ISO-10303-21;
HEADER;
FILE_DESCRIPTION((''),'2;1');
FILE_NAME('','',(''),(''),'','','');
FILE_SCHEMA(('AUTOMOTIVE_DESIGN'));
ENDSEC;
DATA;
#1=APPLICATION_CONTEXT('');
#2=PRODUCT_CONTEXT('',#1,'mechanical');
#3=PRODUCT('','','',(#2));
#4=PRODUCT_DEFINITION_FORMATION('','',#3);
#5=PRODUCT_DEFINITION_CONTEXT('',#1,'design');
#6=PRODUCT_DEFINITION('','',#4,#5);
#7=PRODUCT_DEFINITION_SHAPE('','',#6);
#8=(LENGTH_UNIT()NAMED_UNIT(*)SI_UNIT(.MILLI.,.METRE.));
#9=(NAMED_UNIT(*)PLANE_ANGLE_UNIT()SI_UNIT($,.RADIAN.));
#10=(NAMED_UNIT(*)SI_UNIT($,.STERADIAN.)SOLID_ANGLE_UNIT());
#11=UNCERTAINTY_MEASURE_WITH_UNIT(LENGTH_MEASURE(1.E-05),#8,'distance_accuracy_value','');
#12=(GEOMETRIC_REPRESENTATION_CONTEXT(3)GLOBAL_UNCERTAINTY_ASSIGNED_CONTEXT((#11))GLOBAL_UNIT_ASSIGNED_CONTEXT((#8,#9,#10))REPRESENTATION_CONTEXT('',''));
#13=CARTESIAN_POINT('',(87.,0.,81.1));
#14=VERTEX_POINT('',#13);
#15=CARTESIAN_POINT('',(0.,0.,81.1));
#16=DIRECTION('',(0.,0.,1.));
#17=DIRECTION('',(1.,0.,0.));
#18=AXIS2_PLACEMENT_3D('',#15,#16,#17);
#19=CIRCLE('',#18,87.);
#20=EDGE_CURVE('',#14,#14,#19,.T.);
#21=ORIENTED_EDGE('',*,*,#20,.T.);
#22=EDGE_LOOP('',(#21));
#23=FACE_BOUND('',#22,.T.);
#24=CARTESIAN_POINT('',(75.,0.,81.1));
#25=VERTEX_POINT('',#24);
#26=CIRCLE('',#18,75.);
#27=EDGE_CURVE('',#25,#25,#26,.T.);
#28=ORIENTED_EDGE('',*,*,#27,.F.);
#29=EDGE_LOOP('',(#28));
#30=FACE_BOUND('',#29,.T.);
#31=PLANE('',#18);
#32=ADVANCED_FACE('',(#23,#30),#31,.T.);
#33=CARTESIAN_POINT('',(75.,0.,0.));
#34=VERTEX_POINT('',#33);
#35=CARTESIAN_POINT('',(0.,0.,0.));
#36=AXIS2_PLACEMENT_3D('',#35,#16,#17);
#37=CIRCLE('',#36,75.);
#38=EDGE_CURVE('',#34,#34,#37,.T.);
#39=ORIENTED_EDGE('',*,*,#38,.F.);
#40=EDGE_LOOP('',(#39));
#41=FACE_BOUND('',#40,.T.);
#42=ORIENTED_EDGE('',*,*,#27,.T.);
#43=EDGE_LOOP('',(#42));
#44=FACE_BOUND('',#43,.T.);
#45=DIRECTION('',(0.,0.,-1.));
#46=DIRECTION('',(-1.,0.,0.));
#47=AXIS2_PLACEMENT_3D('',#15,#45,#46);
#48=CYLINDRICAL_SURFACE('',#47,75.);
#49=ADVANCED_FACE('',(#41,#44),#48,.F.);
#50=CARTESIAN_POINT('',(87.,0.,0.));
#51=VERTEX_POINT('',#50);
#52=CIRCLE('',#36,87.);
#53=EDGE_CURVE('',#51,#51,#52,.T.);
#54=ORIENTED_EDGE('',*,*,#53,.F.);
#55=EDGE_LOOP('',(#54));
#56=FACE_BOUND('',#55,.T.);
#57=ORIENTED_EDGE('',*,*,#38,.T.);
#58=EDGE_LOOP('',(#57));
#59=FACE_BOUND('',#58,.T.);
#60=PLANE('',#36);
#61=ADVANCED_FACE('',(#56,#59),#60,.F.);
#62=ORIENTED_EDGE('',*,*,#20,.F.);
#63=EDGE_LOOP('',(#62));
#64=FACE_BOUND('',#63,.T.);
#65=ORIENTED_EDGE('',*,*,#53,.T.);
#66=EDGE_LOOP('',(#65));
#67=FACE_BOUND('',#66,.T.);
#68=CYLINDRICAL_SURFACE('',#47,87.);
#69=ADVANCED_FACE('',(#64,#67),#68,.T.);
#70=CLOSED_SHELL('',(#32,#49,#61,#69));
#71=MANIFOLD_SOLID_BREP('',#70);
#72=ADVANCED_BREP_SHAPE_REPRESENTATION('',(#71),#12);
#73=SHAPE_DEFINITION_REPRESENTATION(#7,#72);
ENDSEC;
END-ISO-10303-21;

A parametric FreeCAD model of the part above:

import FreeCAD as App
import Part
import Sketcher
from FreeCAD import Vector

doc = App.newDocument("Part")
body = doc.addObject("PartDesign::Body", "Body")

# Sketch on XY plane
sketch1 = doc.addObject("Sketcher::SketchObject", "Sketch")
body.addObject(sketch1)
sketch1.AttachmentSupport = (doc.XY_Plane, [""])
sketch1.MapMode = "FlatFace"
sketch1.addGeometry(Part.Circle(Vector(0, 0, 0), Vector(0, 0, 1), 87), False)
sketch1.addGeometry(Part.Circle(Vector(0, 0, 0), Vector(0, 0, 1), 75), False)
sketch1.addConstraint(Sketcher.Constraint("Coincident", 0, 3, -1, 1))
sketch1.addConstraint(Sketcher.Constraint("Coincident", 1, 3, -1, 1))
sketch1.addConstraint(Sketcher.Constraint("Diameter", 0, 174.0))
sketch1.addConstraint(Sketcher.Constraint("Diameter", 1, 150.0))
pad1 = doc.addObject("PartDesign::Pad", "Pad")
body.addObject(pad1)
pad1.Profile = sketch1
pad1.Length = 81.1

doc.recompute()
